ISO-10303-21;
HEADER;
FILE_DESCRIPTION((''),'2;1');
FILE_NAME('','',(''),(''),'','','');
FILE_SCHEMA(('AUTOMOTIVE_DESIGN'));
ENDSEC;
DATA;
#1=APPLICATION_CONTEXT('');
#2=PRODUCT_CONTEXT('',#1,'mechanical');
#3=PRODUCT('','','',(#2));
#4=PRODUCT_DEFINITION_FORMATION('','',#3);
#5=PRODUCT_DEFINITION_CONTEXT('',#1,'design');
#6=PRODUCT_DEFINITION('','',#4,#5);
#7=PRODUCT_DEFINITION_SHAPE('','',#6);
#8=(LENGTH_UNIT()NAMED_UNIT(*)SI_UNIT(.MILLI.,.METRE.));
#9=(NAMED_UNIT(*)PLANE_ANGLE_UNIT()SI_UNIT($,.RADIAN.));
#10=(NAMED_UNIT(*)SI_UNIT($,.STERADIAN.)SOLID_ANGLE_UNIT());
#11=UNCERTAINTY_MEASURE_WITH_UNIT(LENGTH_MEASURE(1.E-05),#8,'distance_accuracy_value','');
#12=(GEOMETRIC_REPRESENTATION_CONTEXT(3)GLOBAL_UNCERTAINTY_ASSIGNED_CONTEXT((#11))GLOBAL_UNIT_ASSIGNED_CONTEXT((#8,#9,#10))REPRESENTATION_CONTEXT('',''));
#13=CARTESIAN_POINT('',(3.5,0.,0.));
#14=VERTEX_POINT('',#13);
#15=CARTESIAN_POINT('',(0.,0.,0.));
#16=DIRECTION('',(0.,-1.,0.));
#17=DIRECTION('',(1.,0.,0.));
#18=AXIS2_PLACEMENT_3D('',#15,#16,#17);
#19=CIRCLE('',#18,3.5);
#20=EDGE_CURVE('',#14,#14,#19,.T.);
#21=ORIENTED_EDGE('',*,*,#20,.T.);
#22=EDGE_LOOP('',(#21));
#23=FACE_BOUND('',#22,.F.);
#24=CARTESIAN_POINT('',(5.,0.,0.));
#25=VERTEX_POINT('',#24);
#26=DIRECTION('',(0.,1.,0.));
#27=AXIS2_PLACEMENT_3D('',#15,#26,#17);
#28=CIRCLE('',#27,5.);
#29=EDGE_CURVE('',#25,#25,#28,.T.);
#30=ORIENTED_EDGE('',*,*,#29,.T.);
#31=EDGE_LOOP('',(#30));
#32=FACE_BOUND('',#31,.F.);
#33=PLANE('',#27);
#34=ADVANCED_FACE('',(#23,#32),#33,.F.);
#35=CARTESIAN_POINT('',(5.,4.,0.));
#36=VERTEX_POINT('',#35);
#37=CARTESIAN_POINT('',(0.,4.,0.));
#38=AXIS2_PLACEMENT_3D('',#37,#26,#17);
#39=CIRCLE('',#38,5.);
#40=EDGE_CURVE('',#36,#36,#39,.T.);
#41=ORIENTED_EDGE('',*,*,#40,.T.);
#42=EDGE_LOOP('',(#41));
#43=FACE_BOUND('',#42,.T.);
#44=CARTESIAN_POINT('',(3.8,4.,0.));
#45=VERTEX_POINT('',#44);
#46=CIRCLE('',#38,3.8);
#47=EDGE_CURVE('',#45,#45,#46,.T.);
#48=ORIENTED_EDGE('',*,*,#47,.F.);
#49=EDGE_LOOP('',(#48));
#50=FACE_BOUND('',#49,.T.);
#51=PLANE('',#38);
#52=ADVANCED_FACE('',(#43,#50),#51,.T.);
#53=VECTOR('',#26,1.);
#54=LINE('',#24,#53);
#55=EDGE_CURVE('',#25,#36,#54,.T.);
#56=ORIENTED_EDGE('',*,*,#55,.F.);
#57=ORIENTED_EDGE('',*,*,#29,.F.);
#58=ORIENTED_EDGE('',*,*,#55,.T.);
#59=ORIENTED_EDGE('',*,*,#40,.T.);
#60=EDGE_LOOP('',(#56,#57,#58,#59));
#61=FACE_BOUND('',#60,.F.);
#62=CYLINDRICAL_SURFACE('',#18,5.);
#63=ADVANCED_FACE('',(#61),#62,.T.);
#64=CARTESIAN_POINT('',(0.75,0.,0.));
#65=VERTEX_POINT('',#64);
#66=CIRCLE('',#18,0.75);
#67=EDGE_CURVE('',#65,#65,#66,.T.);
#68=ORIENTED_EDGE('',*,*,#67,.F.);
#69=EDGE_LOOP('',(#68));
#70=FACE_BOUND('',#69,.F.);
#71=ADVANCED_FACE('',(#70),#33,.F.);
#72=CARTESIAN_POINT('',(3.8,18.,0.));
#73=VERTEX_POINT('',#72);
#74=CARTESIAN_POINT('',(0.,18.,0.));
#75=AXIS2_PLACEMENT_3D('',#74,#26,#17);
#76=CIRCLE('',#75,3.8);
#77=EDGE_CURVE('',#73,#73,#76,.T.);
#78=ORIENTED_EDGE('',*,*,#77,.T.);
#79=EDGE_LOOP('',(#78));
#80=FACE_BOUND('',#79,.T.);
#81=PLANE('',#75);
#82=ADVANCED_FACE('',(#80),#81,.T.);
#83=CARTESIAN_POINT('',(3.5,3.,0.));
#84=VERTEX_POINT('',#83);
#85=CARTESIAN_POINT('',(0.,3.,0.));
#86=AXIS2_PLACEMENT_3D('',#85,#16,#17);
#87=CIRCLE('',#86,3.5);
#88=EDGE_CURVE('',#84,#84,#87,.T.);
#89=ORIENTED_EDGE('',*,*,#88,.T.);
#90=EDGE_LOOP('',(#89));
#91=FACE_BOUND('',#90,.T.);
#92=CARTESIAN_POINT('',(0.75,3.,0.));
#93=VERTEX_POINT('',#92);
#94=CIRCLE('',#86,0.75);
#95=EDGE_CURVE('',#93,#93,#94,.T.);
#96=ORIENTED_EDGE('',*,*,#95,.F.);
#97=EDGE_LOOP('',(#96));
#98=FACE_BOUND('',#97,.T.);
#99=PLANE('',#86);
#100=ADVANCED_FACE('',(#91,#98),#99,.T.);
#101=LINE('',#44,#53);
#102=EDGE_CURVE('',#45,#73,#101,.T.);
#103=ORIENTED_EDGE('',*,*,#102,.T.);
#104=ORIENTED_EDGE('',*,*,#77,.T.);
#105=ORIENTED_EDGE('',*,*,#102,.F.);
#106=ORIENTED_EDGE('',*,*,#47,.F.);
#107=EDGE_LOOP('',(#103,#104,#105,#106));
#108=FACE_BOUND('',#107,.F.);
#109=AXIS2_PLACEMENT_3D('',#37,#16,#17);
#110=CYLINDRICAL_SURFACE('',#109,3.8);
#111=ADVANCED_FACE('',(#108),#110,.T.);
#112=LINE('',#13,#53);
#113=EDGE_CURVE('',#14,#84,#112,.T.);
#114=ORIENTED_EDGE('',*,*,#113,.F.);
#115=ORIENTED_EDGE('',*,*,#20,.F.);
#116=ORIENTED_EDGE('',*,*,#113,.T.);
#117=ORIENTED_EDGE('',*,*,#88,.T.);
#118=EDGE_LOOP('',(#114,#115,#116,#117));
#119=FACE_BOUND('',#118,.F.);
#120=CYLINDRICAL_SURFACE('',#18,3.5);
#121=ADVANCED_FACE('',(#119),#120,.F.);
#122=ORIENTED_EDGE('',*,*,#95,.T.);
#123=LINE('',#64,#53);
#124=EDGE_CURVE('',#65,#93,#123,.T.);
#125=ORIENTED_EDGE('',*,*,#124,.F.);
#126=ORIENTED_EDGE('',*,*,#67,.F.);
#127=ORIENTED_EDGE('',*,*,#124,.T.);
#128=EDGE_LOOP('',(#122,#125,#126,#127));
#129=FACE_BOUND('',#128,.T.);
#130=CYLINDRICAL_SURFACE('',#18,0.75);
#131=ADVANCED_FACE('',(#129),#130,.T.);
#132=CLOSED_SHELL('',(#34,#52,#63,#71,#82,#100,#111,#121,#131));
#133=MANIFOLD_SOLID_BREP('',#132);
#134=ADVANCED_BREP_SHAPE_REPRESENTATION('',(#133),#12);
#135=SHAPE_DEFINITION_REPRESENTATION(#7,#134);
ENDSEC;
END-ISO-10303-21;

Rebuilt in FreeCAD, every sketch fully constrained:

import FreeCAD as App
import Part
import Sketcher

V = App.Vector

doc = App.newDocument("Part")
body = doc.addObject("PartDesign::Body", "Body")

# Sketch on XZ plane
sketch1 = body.newObject("Sketcher::SketchObject", "Sketch")
sketch1.AttachmentSupport = (doc.getObject("XZ_Plane"), [""])
sketch1.MapMode = "FlatFace"
sketch1.addGeometry(Part.Circle(V(0, 0, 0), V(0, 0, 1), 5), False)
sketch1.addConstraint([
    Sketcher.Constraint("Coincident", 0, 3, -1, 1),
    Sketcher.Constraint("Diameter", 0, 10.0),
])
pad1 = body.newObject("PartDesign::Pad", "Pad")
pad1.Profile = sketch1
pad1.Length = 4
pad1.Reversed = True

# Sketch on XZ plane
sketch2 = body.newObject("Sketcher::SketchObject", "Sketch001")
sketch2.AttachmentSupport = (doc.getObject("XZ_Plane"), [""])
sketch2.MapMode = "FlatFace"
sketch2.AttachmentOffset = App.Placement(V(0, 0, -4), App.Rotation())
sketch2.addGeometry(Part.Circle(V(0, 0, 0), V(0, 0, 1), 3.8), False)
sketch2.addConstraint([
    Sketcher.Constraint("Coincident", 0, 3, -1, 1),
    Sketcher.Constraint("Diameter", 0, 7.6),
])
pad2 = body.newObject("PartDesign::Pad", "Pad001")
pad2.Profile = sketch2
pad2.Length = 14
pad2.Reversed = True

# Sketch on XZ plane
sketch3 = body.newObject("Sketcher::SketchObject", "Sketch002")
sketch3.AttachmentSupport = (doc.getObject("XZ_Plane"), [""])
sketch3.MapMode = "FlatFace"
sketch3.addGeometry([
    Part.Circle(V(0, 0, 0), V(0, 0, 1), 3.5),
    Part.Circle(V(0, 0, 0), V(0, 0, 1), 0.8),
], False)
sketch3.addConstraint([
    Sketcher.Constraint("Coincident", 0, 3, -1, 1),
    Sketcher.Constraint("Coincident", 1, 3, -1, 1),
    Sketcher.Constraint("Diameter", 0, 7.0),
    Sketcher.Constraint("Diameter", 1, 1.5),
])
pocket1 = body.newObject("PartDesign::Pocket", "Pocket")
pocket1.Profile = sketch3
pocket1.Length = 3

doc.recompute()
